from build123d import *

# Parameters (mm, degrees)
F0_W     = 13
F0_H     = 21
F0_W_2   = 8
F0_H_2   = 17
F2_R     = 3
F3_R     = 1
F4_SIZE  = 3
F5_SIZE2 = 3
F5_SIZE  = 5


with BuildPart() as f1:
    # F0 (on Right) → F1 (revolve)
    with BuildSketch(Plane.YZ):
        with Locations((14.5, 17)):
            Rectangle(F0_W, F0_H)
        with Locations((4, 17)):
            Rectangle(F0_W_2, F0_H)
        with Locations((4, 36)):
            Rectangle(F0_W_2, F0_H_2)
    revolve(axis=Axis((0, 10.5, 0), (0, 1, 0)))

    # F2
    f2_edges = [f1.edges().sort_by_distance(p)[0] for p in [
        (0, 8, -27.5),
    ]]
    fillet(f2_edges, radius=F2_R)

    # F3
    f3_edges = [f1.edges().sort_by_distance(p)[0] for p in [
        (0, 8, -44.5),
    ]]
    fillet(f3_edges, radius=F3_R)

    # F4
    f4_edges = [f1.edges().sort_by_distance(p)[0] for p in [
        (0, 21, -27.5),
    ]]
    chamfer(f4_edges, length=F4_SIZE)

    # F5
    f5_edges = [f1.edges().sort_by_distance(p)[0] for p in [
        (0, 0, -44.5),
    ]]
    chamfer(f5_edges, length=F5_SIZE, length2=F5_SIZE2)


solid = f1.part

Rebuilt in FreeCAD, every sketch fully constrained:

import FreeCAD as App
import Part
import Sketcher

V = App.Vector
Q = App.Units.Quantity


def edges_at(feature, points):
    """Names of the edges that pass closest to the given points."""
    edges = feature.Shape.Edges
    near = lambda p: min(range(len(edges)), key=lambda i: edges[i].distToShape(Part.Vertex(*p))[0])
    return sorted({f"Edge{near(p) + 1}" for p in points})


def add_polygon(sketch, points):
    """Adds a closed chain of lines whose ends are joined by coincident constraints."""
    first, n = sketch.GeometryCount, len(points)
    for a, b in zip(points, points[1:] + points[:1]):
        sketch.addGeometry(Part.LineSegment(App.Vector(*a, 0), App.Vector(*b, 0)), False)
    for i in range(n):
        sketch.addConstraint(Sketcher.Constraint("Coincident", first + i, 2, first + (i + 1) % n, 1))

doc = App.newDocument("Part")
body = doc.addObject("PartDesign::Body", "Body")

# Sketch on YZ plane
sketch1 = doc.addObject("Sketcher::SketchObject", "Sketch")
body.addObject(sketch1)
sketch1.AttachmentSupport = (doc.YZ_Plane, [""])
sketch1.MapMode = "FlatFace"
add_polygon(sketch1, [(21, 6), (21, 28), (8, 28), (8, 44), (0, 44), (0, 6)])  # lines 0-5
sketch1.addConstraint([
    Sketcher.Constraint("Vertical", 0),
    Sketcher.Constraint("Horizontal", 1),
    Sketcher.Constraint("Vertical", 2),
    Sketcher.Constraint("Horizontal", 3),
    Sketcher.Constraint("Vertical", 4),
    Sketcher.Constraint("Horizontal", 5),
    Sketcher.Constraint("PointOnObject", 3, 2, -2),
    Sketcher.Constraint("Equal", 5, 0),
    Sketcher.Constraint("DistanceX", 1, 2, 1, 1, Q("13 mm")),
    Sketcher.Constraint("DistanceX", 3, 2, 3, 1, Q("8 mm")),
    Sketcher.Constraint("DistanceY", 2, 1, 2, 2, Q("17 mm")),
    Sketcher.Constraint("DistanceY", -1, 1, 0, 2, Q("27.5 mm")),
])
revolution = doc.addObject("PartDesign::Revolution", "Revolution")
body.addObject(revolution)
revolution.Profile = sketch1
revolution.ReferenceAxis = (sketch1, ["H_Axis"])
revolution.Angle = 360
doc.recompute()

fillet = doc.addObject("PartDesign::Fillet", "Fillet")
body.addObject(fillet)
fillet.Base = (revolution, edges_at(revolution, [(0, 8, -27.5)]))
fillet.Radius = 3
doc.recompute()

fillet2 = doc.addObject("PartDesign::Fillet", "Fillet001")
body.addObject(fillet2)
fillet2.Base = (fillet, edges_at(fillet, [(0, 8, -44.5)]))
fillet2.Radius = 1
doc.recompute()

chamfer = doc.addObject("PartDesign::Chamfer", "Chamfer")
body.addObject(chamfer)
chamfer.Base = (fillet2, edges_at(fillet2, [(0, 21, -27.5)]))
chamfer.Size = 3
doc.recompute()

chamfer2 = doc.addObject("PartDesign::Chamfer", "Chamfer001")
body.addObject(chamfer2)
chamfer2.Base = (chamfer, edges_at(chamfer, [(0, 0, -44.5)]))
chamfer2.ChamferType = "Two distances"
chamfer2.Size = 5
chamfer2.Size2 = 3

doc.recompute()
